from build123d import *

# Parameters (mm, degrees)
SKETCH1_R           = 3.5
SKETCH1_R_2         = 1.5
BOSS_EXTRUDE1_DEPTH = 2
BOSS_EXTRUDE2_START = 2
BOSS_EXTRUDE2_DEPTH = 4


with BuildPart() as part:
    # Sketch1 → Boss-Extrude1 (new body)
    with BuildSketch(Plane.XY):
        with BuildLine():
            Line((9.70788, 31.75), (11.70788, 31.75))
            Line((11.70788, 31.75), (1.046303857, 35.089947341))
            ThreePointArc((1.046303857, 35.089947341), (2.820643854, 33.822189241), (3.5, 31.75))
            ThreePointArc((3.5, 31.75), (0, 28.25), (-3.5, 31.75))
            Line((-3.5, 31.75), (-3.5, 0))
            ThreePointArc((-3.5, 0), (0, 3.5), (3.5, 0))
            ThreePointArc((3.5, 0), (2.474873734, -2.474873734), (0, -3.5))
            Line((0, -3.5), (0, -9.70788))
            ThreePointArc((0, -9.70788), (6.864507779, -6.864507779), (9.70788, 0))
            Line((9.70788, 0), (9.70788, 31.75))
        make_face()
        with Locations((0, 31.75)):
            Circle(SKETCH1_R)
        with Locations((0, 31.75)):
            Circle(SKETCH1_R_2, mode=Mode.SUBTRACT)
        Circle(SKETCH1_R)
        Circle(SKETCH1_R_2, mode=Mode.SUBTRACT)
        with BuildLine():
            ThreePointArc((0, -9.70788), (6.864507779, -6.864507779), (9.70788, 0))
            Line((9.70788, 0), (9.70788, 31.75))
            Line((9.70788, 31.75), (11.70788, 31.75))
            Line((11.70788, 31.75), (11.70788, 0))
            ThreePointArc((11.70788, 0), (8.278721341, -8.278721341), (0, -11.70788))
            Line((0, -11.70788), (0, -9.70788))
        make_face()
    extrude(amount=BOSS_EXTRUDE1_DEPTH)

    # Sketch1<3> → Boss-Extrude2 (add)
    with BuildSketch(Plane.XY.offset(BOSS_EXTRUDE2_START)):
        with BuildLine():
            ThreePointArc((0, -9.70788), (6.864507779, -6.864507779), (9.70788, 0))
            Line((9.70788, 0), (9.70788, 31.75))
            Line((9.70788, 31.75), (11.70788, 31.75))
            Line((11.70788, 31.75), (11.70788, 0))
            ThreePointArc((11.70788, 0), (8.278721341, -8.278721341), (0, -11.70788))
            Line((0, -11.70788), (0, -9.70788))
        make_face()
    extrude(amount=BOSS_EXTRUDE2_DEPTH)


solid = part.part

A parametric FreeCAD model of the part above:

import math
import FreeCAD as App
import Part
import Sketcher
from FreeCAD import Vector
Q = App.Units.Quantity

doc = App.newDocument("Part")
params = doc.addObject("Spreadsheet::Sheet", "Params")
for row, (alias, value) in enumerate([
    ("sketch1_diameter", "3 mm"),
    ("sketch1_radius", "3.5 mm"),
    ("sketch1_height", "31.75 mm"),
    ("pad1_length", "2 mm"),
    ("sketch2_width", "2 mm"),
    ("sketch2_height", "31.75 mm"),
    ("pad2_length", "4 mm"),
], start=1):
    params.set(f"A{row}", alias)
    params.set(f"B{row}", "=" + value)
    params.setAlias(f"B{row}", alias)

body = doc.addObject("PartDesign::Body", "Body")

# Sketch on XY plane
sketch1 = body.newObject("Sketcher::SketchObject", "Sketch")
sketch1.AttachmentSupport = (doc.getObject("XY_Plane"), [""])
sketch1.MapMode = "FlatFace"
sketch1.addGeometry([
    Part.LineSegment(Vector(11.70788, 31.75, 0), Vector(1.046304, 35.089947, 0)),  # 0
    Part.ArcOfCircle(Part.Circle(Vector(0, 31.75, 0), Vector(0, 0, 1), 3.5), math.radians(72.605814), math.radians(180)),  # 1
    Part.LineSegment(Vector(-3.5, 31.75, 0), Vector(-3.5, 0, 0)),  # 2
    Part.ArcOfCircle(Part.Circle(Vector(0, 0, 0), Vector(0, 0, 1), 3.5), math.radians(180), math.radians(270)),  # 3
    Part.LineSegment(Vector(0, -3.5, 0), Vector(0, -11.70788, 0)),  # 4
    Part.ArcOfCircle(Part.Circle(Vector(0, 0, 0), Vector(0, 0, 1), 11.70788), math.radians(-90), math.radians(0)),  # 5
    Part.LineSegment(Vector(11.70788, 0, 0), Vector(11.70788, 31.75, 0)),  # 6
    Part.Circle(Vector(0, 0, 0), Vector(0, 0, 1), 1.5),  # 7
    Part.Circle(Vector(0, 31.75, 0), Vector(0, 0, 1), 1.5),  # 8
], False)
sketch1.addConstraint([
    Sketcher.Constraint("Tangent", 0, 2, 1, 1),
    Sketcher.Constraint("Tangent", 1, 2, 2, 1),
    Sketcher.Constraint("Tangent", 2, 2, 3, 1),
    Sketcher.Constraint("Coincident", 3, 2, 4, 1),
    Sketcher.Constraint("Coincident", 4, 2, 5, 1),
    Sketcher.Constraint("Tangent", 5, 2, 6, 1),
    Sketcher.Constraint("Coincident", 6, 2, 0, 1),
    Sketcher.Constraint("Vertical", 2),
    Sketcher.Constraint("Vertical", 4),
    Sketcher.Constraint("Vertical", 6),
    Sketcher.Constraint("Coincident", 3, 3, -1, 1),
    Sketcher.Constraint("Coincident", 5, 3, -1, 1),
    Sketcher.Constraint("Coincident", 7, 3, -1, 1),
    Sketcher.Constraint("Coincident", 8, 3, 1, 3),
    Sketcher.Constraint("Equal", 1, 3),
    Sketcher.Constraint("Equal", 7, 8),
    Sketcher.Constraint("PointOnObject", 3, 2, -2),
    Sketcher.Constraint("Horizontal", 1, 2, 6, 2),
    Sketcher.Constraint("Diameter", 7, Q("3 mm")),
    Sketcher.Constraint("Radius", 1, Q("3.5 mm")),
    Sketcher.Constraint("DistanceY", 2, 2, 2, 1, Q("31.75 mm")),
    Sketcher.Constraint("Radius", 5, Q("11.70788 mm")),
])
sketch1.setExpression("Constraints[18]", "Params.sketch1_diameter")
sketch1.setExpression("Constraints[19]", "Params.sketch1_radius")
sketch1.setExpression("Constraints[20]", "Params.sketch1_height")
pad1 = body.newObject("PartDesign::Pad", "Pad")
pad1.Profile = sketch1
pad1.setExpression("Length", "Params.pad1_length")

# Sketch on XY plane
sketch2 = body.newObject("Sketcher::SketchObject", "Sketch001")
sketch2.AttachmentSupport = (doc.getObject("XY_Plane"), [""])
sketch2.MapMode = "FlatFace"
sketch2.AttachmentOffset = App.Placement(Vector(0, 0, 2), App.Rotation())
sketch2.addGeometry([
    Part.ArcOfCircle(Part.Circle(Vector(0, 0, 0), Vector(0, 0, 1), 9.70788), math.radians(-90), math.radians(0)),  # 0
    Part.LineSegment(Vector(0, -9.70788, 0), Vector(0, -11.70788, 0)),  # 1
    Part.ArcOfCircle(Part.Circle(Vector(0, 0, 0), Vector(0, 0, 1), 11.70788), math.radians(-90), math.radians(0)),  # 2
    Part.LineSegment(Vector(11.70788, 0, 0), Vector(11.70788, 31.75, 0)),  # 3
    Part.LineSegment(Vector(11.70788, 31.75, 0), Vector(9.70788, 31.75, 0)),  # 4
    Part.LineSegment(Vector(9.70788, 31.75, 0), Vector(9.70788, 0, 0)),  # 5
], False)
sketch2.addConstraint([
    Sketcher.Constraint("Coincident", 0, 1, 1, 1),
    Sketcher.Constraint("Coincident", 1, 2, 2, 1),
    Sketcher.Constraint("Tangent", 2, 2, 3, 1),
    Sketcher.Constraint("Coincident", 3, 2, 4, 1),
    Sketcher.Constraint("Coincident", 4, 2, 5, 1),
    Sketcher.Constraint("Tangent", 5, 2, 0, 2),
    Sketcher.Constraint("Vertical", 1),
    Sketcher.Constraint("Vertical", 3),
    Sketcher.Constraint("Horizontal", 4),
    Sketcher.Constraint("Vertical", 5),
    Sketcher.Constraint("Coincident", 0, 3, -1, 1),
    Sketcher.Constraint("Coincident", 2, 3, -1, 1),
    Sketcher.Constraint("PointOnObject", 0, 1, -2),
    Sketcher.Constraint("DistanceX", 4, 2, 4, 1, Q("2 mm")),
    Sketcher.Constraint("DistanceY", 3, 1, 3, 2, Q("31.75 mm")),
    Sketcher.Constraint("Radius", 0, Q("9.70788 mm")),
])
sketch2.setExpression("Constraints[13]", "Params.sketch2_width")
sketch2.setExpression("Constraints[14]", "Params.sketch2_height")
pad2 = body.newObject("PartDesign::Pad", "Pad001")
pad2.Profile = sketch2
pad2.setExpression("Length", "Params.pad2_length")

doc.recompute()
